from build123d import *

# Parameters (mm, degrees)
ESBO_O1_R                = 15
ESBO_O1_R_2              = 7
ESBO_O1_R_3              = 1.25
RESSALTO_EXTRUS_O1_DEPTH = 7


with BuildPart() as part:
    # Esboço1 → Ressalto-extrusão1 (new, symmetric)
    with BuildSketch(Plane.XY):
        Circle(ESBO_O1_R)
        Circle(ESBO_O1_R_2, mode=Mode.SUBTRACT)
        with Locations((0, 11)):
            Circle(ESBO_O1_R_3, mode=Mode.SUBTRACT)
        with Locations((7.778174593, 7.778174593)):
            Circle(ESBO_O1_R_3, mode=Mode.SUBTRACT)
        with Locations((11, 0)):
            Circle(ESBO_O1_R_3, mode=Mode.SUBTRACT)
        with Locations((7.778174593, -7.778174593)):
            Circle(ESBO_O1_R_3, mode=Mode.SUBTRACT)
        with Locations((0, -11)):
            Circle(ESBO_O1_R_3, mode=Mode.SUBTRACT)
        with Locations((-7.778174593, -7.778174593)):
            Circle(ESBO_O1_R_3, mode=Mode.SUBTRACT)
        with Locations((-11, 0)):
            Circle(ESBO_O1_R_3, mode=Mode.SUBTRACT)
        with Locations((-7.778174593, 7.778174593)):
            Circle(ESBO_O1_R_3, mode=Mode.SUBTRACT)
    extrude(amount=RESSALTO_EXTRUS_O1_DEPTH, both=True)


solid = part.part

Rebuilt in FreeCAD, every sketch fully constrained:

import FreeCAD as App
import Part
import Sketcher

V = App.Vector
Q = App.Units.Quantity

doc = App.newDocument("Part")
params = doc.addObject("Spreadsheet::Sheet", "Params")
for row, (alias, value) in enumerate([
    ("sketch1_diameter", "30 mm"),
    ("sketch1_diameter2", "14 mm"),
    ("sketch1_diameter3", "2.5 mm"),
    ("pad1_length", "14 mm"),
], start=1):
    params.set(f"A{row}", alias)
    params.set(f"B{row}", "=" + value)
    params.setAlias(f"B{row}", alias)

body = doc.addObject("PartDesign::Body", "Body")

# Sketch on XY plane
sketch1 = body.newObject("Sketcher::SketchObject", "Sketch")
sketch1.AttachmentSupport = (doc.getObject("XY_Plane"), [""])
sketch1.MapMode = "FlatFace"
sketch1.addGeometry([
    Part.Circle(V(0, 0, 0), V(0, 0, 1), 15),  # 0
    Part.Circle(V(-7.8, -7.8, 0), V(0, 0, 1), 1.2),  # 1
    Part.Circle(V(0, -11, 0), V(0, 0, 1), 1.2),  # 2
    Part.Circle(V(-11, 0, 0), V(0, 0, 1), 1.2),  # 3
    Part.Circle(V(0, 0, 0), V(0, 0, 1), 7),  # 4
    Part.Circle(V(7.8, -7.8, 0), V(0, 0, 1), 1.2),  # 5
    Part.Circle(V(11, 0, 0), V(0, 0, 1), 1.2),  # 6
    Part.Circle(V(-7.8, 7.8, 0), V(0, 0, 1), 1.2),  # 7
    Part.Circle(V(0, 11, 0), V(0, 0, 1), 1.2),  # 8
    Part.Circle(V(7.8, 7.8, 0), V(0, 0, 1), 1.2),  # 9
], False)
sketch1.addConstraint([
    Sketcher.Constraint("Coincident", 0, 3, -1, 1),
    Sketcher.Constraint("Coincident", 4, 3, -1, 1),
    Sketcher.Constraint("Equal", 1, 2),
    Sketcher.Constraint("Equal", 2, 3),
    Sketcher.Constraint("Equal", 3, 5),
    Sketcher.Constraint("Equal", 5, 6),
    Sketcher.Constraint("Equal", 6, 7),
    Sketcher.Constraint("Equal", 7, 8),
    Sketcher.Constraint("Equal", 8, 9),
    Sketcher.Constraint("Symmetric", 3, 3, 6, 3, -1, 1),
    Sketcher.Constraint("Symmetric", 5, 3, 7, 3, -1, 1),
    Sketcher.Constraint("Symmetric", 2, 3, 8, 3, -1, 1),
    Sketcher.Constraint("Symmetric", 1, 3, 9, 3, -1, 1),
    Sketcher.Constraint("Symmetric", 1, 3, 5, 3, -2),
    Sketcher.Constraint("PointOnObject", 2, 3, -2),
    Sketcher.Constraint("PointOnObject", 3, 3, -1),
    Sketcher.Constraint("Diameter", 0, Q("30 mm")),
    Sketcher.Constraint("Diameter", 4, Q("14 mm")),
    Sketcher.Constraint("Diameter", 1, Q("2.5 mm")),
    Sketcher.Constraint("DistanceY", 2, 3, -1, 1, Q("11 mm")),
    Sketcher.Constraint("DistanceX", 3, 3, -1, 1, Q("11 mm")),
    Sketcher.Constraint("DistanceX", 1, 3, 5, 3, Q("15.556349 mm")),
    Sketcher.Constraint("DistanceY", 1, 3, 7, 3, Q("15.556349 mm")),
])
sketch1.setExpression("Constraints[16]", "Params.sketch1_diameter")
sketch1.setExpression("Constraints[17]", "Params.sketch1_diameter2")
sketch1.setExpression("Constraints[18]", "Params.sketch1_diameter3")
pad1 = body.newObject("PartDesign::Pad", "Pad")
pad1.Profile = sketch1
pad1.setExpression("Length", "Params.pad1_length")
pad1.Midplane = True

doc.recompute()
